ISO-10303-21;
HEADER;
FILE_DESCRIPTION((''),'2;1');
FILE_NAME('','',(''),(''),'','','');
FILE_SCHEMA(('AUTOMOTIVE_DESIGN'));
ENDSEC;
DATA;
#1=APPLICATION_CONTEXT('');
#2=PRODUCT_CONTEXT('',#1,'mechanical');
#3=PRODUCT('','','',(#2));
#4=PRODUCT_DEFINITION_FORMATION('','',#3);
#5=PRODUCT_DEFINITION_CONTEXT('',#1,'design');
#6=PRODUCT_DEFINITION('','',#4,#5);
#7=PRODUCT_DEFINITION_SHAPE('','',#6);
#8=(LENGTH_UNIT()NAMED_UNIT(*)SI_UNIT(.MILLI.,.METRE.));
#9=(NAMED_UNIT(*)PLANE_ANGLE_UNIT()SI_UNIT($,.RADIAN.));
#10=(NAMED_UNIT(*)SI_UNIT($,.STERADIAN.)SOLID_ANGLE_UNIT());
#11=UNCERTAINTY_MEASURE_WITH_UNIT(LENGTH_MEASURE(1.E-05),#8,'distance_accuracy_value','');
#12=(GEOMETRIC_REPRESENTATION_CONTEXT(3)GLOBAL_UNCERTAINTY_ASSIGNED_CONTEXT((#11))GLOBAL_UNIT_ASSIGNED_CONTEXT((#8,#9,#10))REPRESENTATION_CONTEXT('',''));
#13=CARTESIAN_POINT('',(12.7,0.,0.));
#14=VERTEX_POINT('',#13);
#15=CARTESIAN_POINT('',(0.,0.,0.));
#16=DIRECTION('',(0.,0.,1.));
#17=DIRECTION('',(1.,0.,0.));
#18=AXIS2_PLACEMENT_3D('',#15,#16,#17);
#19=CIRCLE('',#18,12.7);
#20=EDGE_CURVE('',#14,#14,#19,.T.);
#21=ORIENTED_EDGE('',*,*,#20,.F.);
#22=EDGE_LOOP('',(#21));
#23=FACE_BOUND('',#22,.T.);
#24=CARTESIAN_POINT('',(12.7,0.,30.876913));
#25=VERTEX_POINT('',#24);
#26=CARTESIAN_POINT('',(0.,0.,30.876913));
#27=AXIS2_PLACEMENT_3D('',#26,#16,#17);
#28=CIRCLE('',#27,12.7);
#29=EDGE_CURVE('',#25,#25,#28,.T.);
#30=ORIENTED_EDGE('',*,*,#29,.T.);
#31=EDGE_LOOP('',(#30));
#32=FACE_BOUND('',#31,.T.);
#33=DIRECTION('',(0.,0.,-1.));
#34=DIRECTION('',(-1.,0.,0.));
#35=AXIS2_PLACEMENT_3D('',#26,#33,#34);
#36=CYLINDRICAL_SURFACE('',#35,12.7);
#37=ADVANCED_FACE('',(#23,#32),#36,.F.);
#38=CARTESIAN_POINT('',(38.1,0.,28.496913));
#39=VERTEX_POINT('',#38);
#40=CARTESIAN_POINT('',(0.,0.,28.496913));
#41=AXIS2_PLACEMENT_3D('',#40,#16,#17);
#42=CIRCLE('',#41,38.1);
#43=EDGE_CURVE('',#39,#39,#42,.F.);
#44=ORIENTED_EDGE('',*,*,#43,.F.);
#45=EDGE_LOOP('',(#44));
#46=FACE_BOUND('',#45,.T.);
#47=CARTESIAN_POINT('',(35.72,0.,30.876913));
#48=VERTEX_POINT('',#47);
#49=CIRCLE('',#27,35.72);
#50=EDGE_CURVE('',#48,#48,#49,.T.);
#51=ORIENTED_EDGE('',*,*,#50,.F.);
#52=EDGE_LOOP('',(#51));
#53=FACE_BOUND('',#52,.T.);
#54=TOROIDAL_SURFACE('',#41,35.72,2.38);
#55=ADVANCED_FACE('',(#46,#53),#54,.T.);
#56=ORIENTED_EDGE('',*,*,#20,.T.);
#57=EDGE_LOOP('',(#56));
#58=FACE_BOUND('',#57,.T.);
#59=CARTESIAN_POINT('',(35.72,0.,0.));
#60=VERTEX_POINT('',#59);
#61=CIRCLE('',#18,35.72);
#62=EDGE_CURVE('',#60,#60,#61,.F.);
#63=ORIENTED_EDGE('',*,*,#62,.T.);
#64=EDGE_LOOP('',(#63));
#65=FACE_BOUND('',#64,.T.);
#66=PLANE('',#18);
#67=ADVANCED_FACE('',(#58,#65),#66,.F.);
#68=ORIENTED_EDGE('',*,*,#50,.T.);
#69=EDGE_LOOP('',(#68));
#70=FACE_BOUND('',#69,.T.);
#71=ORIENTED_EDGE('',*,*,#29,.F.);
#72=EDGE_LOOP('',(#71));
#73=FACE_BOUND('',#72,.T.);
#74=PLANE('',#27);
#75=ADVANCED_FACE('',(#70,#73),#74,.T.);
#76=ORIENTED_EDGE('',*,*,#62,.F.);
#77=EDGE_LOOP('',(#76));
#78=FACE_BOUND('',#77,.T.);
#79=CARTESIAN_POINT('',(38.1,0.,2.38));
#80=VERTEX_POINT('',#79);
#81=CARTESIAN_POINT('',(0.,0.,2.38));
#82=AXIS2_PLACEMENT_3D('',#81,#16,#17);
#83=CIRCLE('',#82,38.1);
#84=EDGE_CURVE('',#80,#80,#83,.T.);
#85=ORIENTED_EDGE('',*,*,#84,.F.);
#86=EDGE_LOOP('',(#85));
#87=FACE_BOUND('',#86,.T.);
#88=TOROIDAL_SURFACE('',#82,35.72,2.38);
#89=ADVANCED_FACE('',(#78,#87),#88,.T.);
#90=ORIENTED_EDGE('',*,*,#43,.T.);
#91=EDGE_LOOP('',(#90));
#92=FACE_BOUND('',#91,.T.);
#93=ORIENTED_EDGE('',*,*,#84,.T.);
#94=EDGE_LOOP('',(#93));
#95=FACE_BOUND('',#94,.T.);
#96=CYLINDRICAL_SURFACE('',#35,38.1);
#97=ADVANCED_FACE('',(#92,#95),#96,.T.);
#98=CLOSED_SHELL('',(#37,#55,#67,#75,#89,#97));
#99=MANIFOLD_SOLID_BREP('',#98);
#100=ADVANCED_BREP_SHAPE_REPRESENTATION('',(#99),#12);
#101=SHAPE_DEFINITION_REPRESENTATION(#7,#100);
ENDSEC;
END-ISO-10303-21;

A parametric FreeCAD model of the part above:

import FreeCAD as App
import Part
import Sketcher
Q = App.Units.Quantity


def edges_at(feature, points):
    """Names of the edges that pass closest to the given points."""
    edges = feature.Shape.Edges
    near = lambda p: min(range(len(edges)), key=lambda i: edges[i].distToShape(Part.Vertex(*p))[0])
    return sorted({f"Edge{near(p) + 1}" for p in points})

doc = App.newDocument("Part")
body = doc.addObject("PartDesign::Body", "Body")

# Sketch on XY plane
sketch1 = body.newObject("Sketcher::SketchObject", "Sketch")
sketch1.AttachmentSupport = (doc.getObject("XY_Plane"), [""])
sketch1.MapMode = "FlatFace"
sketch1.addGeometry(Part.Circle(App.Vector(0, 0, 0), App.Vector(0, 0, 1), 38.1), False)
sketch1.addGeometry(Part.Circle(App.Vector(0, 0, 0), App.Vector(0, 0, 1), 12.7), False)
sketch1.addConstraint(Sketcher.Constraint("Coincident", 0, 3, -1, 1))
sketch1.addConstraint(Sketcher.Constraint("Coincident", 1, 3, -1, 1))
sketch1.addConstraint(Sketcher.Constraint("Diameter", 0, Q("3 in")))
sketch1.addConstraint(Sketcher.Constraint("Diameter", 1, Q("1 in")))
pad1 = body.newObject("PartDesign::Pad", "Pad")
pad1.Profile = sketch1
pad1.Length = 30.876913
doc.recompute()

fillet = body.newObject("PartDesign::Fillet", "Fillet")
fillet.Base = (pad1, edges_at(pad1, [(-38.1, 0, 0), (-38.1, 0, 30.877)]))
fillet.Radius = 2.38

doc.recompute()
